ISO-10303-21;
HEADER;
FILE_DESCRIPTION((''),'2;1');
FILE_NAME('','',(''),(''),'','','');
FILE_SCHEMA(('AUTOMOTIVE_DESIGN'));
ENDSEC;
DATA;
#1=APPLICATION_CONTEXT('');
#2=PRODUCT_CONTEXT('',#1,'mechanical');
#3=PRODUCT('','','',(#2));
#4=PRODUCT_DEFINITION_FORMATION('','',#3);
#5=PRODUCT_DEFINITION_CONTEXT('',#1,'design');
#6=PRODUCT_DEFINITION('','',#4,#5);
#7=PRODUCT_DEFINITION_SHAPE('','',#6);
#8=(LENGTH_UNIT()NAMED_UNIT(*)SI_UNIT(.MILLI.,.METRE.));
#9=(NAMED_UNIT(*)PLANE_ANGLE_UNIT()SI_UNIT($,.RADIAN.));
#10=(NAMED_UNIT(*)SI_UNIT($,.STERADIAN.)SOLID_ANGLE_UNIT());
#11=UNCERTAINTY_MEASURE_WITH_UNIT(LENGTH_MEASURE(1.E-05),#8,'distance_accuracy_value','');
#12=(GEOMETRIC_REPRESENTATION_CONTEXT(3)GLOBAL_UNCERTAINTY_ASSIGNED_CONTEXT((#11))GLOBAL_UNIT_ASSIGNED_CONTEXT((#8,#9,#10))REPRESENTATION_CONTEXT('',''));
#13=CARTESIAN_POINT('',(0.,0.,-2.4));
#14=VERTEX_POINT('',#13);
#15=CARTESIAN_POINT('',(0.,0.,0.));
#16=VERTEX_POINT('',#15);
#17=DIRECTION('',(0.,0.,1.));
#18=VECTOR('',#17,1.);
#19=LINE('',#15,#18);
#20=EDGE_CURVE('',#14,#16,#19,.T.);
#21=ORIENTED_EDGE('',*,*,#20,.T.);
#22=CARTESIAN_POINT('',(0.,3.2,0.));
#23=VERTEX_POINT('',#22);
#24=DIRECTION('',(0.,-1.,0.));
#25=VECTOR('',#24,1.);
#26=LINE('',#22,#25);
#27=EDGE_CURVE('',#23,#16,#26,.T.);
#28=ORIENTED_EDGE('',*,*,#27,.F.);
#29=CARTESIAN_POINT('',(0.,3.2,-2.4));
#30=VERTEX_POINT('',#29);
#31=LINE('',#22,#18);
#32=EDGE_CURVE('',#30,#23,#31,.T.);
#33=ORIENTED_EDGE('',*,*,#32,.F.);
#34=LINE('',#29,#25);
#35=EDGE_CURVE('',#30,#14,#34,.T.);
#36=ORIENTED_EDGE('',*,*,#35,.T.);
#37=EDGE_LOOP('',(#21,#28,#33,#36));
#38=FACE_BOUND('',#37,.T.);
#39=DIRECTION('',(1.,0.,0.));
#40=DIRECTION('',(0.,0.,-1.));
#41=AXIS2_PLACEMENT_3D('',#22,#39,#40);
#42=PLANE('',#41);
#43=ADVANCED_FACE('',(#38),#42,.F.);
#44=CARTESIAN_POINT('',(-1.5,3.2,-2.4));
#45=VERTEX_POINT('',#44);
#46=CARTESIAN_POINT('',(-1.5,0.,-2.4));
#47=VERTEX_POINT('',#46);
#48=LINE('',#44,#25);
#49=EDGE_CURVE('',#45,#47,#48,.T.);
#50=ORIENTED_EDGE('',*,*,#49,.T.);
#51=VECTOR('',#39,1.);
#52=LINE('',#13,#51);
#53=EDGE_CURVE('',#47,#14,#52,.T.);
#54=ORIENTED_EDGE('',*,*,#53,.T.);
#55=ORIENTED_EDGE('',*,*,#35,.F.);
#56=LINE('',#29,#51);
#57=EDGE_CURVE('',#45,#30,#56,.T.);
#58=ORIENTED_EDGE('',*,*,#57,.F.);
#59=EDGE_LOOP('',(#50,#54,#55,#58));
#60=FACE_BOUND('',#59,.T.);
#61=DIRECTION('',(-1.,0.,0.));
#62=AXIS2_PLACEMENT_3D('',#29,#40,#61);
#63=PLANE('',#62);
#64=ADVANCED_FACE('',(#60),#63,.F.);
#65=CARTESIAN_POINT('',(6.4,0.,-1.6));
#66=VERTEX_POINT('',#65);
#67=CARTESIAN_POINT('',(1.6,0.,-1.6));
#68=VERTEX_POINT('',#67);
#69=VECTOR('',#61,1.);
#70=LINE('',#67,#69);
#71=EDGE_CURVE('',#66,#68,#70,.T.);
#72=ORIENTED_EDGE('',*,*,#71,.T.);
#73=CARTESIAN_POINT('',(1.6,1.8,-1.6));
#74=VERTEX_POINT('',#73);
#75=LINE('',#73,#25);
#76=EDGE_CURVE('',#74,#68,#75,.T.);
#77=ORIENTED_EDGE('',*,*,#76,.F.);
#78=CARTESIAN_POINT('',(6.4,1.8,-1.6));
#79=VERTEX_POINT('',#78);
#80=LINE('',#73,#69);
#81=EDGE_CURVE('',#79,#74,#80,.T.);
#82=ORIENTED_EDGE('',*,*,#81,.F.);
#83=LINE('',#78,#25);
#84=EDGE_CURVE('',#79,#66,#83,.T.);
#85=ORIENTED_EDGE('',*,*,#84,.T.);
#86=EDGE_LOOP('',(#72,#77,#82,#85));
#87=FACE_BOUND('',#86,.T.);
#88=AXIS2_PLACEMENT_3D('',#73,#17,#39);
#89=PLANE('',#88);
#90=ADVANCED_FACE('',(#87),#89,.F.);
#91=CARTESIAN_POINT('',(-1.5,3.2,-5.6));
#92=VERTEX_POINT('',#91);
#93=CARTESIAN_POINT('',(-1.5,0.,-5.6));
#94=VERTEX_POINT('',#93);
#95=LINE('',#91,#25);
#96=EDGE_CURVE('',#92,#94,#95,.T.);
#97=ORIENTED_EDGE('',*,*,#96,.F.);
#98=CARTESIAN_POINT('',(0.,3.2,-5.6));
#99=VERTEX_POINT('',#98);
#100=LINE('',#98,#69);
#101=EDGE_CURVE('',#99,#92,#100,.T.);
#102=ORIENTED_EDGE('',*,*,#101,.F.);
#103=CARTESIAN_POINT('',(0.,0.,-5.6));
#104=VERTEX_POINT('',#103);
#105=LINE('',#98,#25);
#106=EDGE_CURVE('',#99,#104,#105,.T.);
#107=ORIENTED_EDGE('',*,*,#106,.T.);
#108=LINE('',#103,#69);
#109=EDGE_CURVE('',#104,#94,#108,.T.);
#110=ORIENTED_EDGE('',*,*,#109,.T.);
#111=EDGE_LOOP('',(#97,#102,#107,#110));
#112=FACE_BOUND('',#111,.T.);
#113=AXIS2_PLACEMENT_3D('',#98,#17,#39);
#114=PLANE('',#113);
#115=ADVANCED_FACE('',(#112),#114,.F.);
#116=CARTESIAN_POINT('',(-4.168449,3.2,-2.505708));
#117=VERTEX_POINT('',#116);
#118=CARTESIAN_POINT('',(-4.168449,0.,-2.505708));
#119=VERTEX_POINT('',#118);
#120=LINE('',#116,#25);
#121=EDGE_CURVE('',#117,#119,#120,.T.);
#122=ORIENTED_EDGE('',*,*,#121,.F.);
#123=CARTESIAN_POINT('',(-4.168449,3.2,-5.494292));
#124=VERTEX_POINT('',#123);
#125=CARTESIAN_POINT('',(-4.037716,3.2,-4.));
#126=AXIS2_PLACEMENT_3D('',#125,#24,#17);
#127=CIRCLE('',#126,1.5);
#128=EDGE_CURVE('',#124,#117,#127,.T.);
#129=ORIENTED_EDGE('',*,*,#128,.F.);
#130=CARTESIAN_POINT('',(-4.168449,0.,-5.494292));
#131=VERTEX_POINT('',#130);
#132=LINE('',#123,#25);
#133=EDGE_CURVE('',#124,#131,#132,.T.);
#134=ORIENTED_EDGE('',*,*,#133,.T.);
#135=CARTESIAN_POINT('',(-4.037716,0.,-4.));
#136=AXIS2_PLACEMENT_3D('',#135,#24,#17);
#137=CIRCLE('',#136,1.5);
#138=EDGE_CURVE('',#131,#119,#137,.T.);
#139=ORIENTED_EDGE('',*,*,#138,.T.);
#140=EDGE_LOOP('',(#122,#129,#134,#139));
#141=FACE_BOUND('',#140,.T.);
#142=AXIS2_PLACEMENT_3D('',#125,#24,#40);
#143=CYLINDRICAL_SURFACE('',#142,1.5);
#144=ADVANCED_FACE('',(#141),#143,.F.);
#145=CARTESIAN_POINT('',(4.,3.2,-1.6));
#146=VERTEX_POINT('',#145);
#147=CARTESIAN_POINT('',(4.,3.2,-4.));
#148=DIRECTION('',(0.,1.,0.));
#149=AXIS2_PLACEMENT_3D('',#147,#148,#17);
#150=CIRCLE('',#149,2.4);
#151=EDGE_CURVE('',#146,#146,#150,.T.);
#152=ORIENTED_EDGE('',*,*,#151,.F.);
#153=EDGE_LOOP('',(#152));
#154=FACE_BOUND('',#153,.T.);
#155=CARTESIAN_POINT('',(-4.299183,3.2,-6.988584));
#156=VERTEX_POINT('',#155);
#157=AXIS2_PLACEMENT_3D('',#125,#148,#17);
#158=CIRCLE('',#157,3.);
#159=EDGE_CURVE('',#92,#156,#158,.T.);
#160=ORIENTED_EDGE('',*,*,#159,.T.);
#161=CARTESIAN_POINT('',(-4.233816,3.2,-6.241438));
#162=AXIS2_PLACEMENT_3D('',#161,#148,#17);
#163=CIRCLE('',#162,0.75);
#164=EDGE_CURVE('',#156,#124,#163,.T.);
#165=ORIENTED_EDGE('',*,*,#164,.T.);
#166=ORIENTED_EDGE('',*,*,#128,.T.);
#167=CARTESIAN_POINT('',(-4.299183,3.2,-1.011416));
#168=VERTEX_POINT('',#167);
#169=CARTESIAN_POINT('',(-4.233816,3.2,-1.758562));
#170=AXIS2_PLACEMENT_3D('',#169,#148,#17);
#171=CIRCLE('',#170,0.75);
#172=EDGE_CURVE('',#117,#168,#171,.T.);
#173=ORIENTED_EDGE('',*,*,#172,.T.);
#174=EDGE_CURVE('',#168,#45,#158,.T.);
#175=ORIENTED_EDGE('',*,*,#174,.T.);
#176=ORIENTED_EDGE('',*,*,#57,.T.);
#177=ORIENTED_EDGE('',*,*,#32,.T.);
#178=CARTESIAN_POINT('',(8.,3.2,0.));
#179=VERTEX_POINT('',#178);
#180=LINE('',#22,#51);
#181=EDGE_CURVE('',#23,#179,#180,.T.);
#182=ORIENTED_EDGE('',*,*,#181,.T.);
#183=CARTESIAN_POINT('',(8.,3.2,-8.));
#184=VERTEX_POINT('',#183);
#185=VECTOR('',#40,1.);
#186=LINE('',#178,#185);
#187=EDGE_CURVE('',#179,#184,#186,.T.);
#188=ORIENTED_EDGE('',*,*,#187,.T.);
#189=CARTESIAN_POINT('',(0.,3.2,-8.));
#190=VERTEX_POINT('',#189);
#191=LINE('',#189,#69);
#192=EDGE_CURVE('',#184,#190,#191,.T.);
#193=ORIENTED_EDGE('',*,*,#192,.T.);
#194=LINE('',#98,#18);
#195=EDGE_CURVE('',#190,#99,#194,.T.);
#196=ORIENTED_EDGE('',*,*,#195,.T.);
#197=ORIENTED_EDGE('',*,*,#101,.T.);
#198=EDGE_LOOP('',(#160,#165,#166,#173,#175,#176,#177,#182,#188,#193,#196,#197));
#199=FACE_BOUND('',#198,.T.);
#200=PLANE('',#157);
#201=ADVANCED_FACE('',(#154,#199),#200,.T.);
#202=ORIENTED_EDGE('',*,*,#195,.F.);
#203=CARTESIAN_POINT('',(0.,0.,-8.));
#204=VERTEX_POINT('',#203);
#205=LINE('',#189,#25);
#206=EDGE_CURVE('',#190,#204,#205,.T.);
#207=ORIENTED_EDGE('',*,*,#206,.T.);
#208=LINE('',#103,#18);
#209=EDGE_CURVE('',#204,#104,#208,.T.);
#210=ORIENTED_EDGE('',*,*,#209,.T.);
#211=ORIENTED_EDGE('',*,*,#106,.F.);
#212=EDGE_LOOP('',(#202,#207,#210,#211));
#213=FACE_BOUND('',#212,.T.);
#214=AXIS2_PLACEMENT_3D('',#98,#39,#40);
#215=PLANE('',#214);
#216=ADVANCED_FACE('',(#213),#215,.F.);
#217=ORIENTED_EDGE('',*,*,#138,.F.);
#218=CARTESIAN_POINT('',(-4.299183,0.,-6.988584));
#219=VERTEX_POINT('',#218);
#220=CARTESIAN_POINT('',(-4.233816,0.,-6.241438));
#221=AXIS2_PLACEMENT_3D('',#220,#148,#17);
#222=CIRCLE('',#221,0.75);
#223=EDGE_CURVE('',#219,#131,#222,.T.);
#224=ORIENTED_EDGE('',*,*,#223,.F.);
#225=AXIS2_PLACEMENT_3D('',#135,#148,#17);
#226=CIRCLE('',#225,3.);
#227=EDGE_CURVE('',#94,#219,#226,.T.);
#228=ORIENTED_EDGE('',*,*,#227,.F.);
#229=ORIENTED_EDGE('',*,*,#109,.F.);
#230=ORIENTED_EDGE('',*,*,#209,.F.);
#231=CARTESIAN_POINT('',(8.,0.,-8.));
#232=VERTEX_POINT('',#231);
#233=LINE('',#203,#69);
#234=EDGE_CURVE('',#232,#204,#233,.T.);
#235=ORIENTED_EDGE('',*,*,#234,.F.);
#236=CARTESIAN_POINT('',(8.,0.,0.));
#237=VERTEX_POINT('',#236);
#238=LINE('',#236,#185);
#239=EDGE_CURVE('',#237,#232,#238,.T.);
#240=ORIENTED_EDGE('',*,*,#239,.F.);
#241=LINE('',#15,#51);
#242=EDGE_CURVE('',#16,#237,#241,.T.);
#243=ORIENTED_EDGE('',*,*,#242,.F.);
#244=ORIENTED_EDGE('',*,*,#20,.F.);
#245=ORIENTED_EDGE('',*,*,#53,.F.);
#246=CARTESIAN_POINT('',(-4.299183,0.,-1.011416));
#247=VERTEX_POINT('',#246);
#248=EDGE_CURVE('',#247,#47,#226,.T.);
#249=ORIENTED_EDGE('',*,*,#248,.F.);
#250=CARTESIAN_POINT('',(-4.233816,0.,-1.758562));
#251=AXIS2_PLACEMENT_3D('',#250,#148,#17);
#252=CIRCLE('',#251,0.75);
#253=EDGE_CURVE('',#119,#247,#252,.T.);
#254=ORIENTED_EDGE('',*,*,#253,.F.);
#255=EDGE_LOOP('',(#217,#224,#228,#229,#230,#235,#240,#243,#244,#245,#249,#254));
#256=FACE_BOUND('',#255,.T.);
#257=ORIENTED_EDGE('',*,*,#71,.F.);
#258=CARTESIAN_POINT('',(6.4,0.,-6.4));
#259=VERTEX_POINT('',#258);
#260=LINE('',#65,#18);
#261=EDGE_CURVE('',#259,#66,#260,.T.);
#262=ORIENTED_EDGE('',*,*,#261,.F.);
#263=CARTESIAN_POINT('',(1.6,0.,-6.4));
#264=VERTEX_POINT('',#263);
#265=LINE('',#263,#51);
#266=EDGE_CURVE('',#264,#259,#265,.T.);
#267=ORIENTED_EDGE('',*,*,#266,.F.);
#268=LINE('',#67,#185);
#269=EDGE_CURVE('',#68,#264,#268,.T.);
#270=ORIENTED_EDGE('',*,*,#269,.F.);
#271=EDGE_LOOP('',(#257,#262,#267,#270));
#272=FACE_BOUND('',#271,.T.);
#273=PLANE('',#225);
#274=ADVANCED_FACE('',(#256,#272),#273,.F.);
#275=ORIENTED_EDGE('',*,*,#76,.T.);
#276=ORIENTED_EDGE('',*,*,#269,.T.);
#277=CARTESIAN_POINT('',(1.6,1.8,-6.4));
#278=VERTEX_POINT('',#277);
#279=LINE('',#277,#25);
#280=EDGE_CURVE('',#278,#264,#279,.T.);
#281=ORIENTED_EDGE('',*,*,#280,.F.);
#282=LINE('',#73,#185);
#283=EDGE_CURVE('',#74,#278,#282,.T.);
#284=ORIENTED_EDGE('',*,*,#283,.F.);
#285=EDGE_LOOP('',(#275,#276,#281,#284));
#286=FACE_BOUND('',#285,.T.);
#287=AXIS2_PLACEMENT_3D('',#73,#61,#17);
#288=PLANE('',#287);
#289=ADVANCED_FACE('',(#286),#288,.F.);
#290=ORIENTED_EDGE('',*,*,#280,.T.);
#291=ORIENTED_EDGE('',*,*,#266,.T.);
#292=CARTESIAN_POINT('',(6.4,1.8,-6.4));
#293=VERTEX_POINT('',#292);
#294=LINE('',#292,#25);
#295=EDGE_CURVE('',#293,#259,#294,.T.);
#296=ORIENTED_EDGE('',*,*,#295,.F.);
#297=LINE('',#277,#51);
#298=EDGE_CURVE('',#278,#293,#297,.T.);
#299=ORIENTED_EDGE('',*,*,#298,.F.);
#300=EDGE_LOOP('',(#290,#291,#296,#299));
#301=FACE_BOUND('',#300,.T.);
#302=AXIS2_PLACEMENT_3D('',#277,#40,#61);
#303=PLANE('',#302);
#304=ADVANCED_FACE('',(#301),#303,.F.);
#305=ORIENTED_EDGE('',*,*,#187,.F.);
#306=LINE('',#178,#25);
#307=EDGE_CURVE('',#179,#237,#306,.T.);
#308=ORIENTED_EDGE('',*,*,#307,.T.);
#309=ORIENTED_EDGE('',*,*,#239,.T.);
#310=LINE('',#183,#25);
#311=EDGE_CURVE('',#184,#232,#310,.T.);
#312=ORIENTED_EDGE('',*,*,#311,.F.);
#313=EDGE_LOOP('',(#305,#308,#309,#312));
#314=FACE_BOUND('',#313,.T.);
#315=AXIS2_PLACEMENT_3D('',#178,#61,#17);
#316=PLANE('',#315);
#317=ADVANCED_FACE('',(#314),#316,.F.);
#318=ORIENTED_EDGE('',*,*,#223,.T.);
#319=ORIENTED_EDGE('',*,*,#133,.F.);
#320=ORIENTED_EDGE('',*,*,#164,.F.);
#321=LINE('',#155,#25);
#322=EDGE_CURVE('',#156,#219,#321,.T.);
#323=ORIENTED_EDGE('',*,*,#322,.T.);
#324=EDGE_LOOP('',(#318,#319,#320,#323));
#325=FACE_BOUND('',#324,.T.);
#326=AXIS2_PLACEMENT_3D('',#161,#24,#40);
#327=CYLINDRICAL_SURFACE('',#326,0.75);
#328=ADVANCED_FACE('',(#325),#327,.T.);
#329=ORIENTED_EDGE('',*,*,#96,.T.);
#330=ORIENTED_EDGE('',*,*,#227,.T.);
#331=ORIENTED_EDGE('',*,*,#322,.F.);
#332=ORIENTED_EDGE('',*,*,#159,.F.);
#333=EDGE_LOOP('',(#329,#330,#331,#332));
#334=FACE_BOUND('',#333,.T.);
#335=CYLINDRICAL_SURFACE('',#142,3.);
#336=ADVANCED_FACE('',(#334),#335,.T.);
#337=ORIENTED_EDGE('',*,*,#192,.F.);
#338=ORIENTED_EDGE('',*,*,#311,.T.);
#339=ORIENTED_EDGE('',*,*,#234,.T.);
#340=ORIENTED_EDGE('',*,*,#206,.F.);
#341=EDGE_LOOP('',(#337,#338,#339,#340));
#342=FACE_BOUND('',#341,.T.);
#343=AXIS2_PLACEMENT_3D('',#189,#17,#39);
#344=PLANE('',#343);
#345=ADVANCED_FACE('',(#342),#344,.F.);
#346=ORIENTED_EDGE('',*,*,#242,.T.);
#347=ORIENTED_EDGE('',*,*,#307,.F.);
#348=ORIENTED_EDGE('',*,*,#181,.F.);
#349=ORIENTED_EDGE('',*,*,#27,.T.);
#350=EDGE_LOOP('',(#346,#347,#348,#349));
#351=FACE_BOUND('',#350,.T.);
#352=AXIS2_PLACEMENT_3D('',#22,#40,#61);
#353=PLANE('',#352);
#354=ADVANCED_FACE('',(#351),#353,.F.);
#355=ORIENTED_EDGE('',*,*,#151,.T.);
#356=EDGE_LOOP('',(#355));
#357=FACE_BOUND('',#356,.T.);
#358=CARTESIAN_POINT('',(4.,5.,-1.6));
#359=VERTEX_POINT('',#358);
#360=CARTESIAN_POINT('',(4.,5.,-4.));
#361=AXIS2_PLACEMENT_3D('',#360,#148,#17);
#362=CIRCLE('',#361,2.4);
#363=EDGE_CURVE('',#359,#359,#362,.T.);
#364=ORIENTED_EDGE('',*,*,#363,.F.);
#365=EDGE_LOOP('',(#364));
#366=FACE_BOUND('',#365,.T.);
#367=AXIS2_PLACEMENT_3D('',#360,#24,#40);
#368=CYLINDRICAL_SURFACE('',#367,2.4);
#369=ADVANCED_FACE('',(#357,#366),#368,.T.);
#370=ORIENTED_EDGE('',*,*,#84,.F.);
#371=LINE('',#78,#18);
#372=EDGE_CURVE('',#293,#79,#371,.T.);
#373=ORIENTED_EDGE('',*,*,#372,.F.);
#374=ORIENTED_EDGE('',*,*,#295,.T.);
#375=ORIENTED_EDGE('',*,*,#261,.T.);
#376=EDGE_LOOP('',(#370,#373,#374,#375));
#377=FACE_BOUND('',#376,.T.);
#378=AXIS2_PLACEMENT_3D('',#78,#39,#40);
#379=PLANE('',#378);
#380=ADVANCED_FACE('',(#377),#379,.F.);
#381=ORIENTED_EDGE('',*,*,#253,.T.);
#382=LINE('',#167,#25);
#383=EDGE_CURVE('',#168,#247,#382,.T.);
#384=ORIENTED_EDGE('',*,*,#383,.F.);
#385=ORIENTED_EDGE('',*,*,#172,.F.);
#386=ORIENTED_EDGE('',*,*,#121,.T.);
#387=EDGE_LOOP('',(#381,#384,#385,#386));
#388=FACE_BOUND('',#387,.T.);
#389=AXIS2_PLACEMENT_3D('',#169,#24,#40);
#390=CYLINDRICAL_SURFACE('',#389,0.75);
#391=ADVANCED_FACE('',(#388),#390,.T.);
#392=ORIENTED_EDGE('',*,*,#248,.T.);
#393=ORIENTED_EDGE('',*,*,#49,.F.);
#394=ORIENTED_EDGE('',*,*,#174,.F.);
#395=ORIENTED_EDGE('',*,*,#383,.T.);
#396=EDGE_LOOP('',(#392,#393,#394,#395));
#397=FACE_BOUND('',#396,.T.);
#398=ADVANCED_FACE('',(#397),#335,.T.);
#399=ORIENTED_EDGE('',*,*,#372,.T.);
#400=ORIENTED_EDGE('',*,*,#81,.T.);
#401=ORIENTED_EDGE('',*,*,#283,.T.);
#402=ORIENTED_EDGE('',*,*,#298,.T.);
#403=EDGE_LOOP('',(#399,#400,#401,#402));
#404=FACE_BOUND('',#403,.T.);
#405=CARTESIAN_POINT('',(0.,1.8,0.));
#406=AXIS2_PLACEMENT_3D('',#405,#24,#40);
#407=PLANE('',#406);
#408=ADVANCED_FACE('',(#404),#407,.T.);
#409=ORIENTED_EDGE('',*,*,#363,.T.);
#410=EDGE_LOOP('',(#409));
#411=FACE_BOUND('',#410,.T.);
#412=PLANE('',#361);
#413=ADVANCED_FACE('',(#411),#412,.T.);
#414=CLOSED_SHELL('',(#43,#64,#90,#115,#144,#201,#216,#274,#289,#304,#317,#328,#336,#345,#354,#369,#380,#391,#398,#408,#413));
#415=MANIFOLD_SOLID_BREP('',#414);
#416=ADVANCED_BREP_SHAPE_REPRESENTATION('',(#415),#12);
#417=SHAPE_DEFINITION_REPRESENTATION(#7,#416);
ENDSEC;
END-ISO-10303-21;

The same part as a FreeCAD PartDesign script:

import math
import FreeCAD as App
import Part
import Sketcher
from FreeCAD import Vector

doc = App.newDocument("Part")
params = doc.addObject("Spreadsheet::Sheet", "Params")
for row, (alias, value) in enumerate([
    ("sketch1_radius", "3 mm"),
    ("sketch1_radius2", "1.5 mm"),
    ("sketch1_width", "8 mm"),
    ("sketch1_width2", "1.5 mm"),
    ("sketch1_height", "2.4 mm"),
    ("pad1_length", "3.2 mm"),
    ("sketch2_diameter", "4.8 mm"),
    ("pad2_length", "1.8 mm"),
    ("sketch3_width", "4.8 mm"),
    ("pocket1_length", "1.8 mm"),
], start=1):
    params.set(f"A{row}", alias)
    params.set(f"B{row}", "=" + value)
    params.setAlias(f"B{row}", alias)

body = doc.addObject("PartDesign::Body", "Body")

# Sketch on XZ plane
sketch1 = body.newObject("Sketcher::SketchObject", "Sketch")
sketch1.AttachmentSupport = (doc.getObject("XZ_Plane"), [""])
sketch1.MapMode = "FlatFace"
sketch1.addGeometry(Part.LineSegment(Vector(-1.5, -2.4, 0), Vector(0, -2.4, 0)), False)
sketch1.addGeometry(Part.LineSegment(Vector(0, -2.4, 0), Vector(0, 0, 0)), False)
sketch1.addGeometry(Part.LineSegment(Vector(0, 0, 0), Vector(8, 0, 0)), False)
sketch1.addGeometry(Part.LineSegment(Vector(8, 0, 0), Vector(8, -8, 0)), False)
sketch1.addGeometry(Part.LineSegment(Vector(8, -8, 0), Vector(0, -8, 0)), False)
sketch1.addGeometry(Part.LineSegment(Vector(0, -8, 0), Vector(0, -5.6, 0)), False)
sketch1.addGeometry(Part.LineSegment(Vector(0, -5.6, 0), Vector(-1.5, -5.6, 0)), False)
sketch1.addGeometry(Part.ArcOfCircle(Part.Circle(Vector(-4.037716, -4, 0), Vector(0, 0, 1), 3), math.radians(-95), math.radians(-32.230953)), False)
sketch1.addGeometry(Part.ArcOfCircle(Part.Circle(Vector(-4.233816, -6.241438, 0), Vector(0, 0, 1), 0.75), math.radians(85), math.radians(265)), False)
sketch1.addGeometry(Part.ArcOfCircle(Part.Circle(Vector(-4.037716, -4, 0), Vector(0, 0, 1), 1.5), math.radians(-95), math.radians(95)), False)
sketch1.addGeometry(Part.ArcOfCircle(Part.Circle(Vector(-4.233816, -1.758562, 0), Vector(0, 0, 1), 0.75), math.radians(95), math.radians(275)), False)
sketch1.addGeometry(Part.ArcOfCircle(Part.Circle(Vector(-4.037716, -4, 0), Vector(0, 0, 1), 3), math.radians(32.230953), math.radians(95)), False)
sketch1.addConstraint(Sketcher.Constraint("Coincident", 0, 2, 1, 1))
sketch1.addConstraint(Sketcher.Constraint("Coincident", 1, 2, 2, 1))
sketch1.addConstraint(Sketcher.Constraint("Coincident", 2, 2, 3, 1))
sketch1.addConstraint(Sketcher.Constraint("Coincident", 3, 2, 4, 1))
sketch1.addConstraint(Sketcher.Constraint("Coincident", 4, 2, 5, 1))
sketch1.addConstraint(Sketcher.Constraint("Coincident", 5, 2, 6, 1))
sketch1.addConstraint(Sketcher.Constraint("Coincident", 6, 2, 7, 2))
sketch1.addConstraint(Sketcher.Constraint("Tangent", 7, 1, 8, 2))
sketch1.addConstraint(Sketcher.Constraint("Tangent", 8, 1, 9, 1))
sketch1.addConstraint(Sketcher.Constraint("Tangent", 9, 2, 10, 2))
sketch1.addConstraint(Sketcher.Constraint("Tangent", 10, 1, 11, 2))
sketch1.addConstraint(Sketcher.Constraint("Coincident", 11, 1, 0, 1))
sketch1.addConstraint(Sketcher.Constraint("Horizontal", 0))
sketch1.addConstraint(Sketcher.Constraint("Vertical", 1))
sketch1.addConstraint(Sketcher.Constraint("Horizontal", 2))
sketch1.addConstraint(Sketcher.Constraint("Vertical", 3))
sketch1.addConstraint(Sketcher.Constraint("Horizontal", 4))
sketch1.addConstraint(Sketcher.Constraint("Vertical", 5))
sketch1.addConstraint(Sketcher.Constraint("Horizontal", 6))
sketch1.addConstraint(Sketcher.Constraint("Coincident", 1, 2, -1, 1))
sketch1.addConstraint(Sketcher.Constraint("Coincident", 9, 3, 7, 3))
sketch1.addConstraint(Sketcher.Constraint("Coincident", 11, 3, 7, 3))
sketch1.addConstraint(Sketcher.Constraint("Equal", 8, 10))
sketch1.addConstraint(Sketcher.Constraint("PointOnObject", 4, 2, -2))
sketch1.addConstraint(Sketcher.Constraint("Vertical", 8, 3, 10, 3))
sketch1.addConstraint(Sketcher.Constraint("Vertical", 6, 2, 11, 1))
sketch1.addConstraint(Sketcher.Constraint("Equal", 4, 3))
sketch1.addConstraint(Sketcher.Constraint("Equal", 1, 5))
sketch1.addConstraint(Sketcher.Constraint("Radius", 7, 3.0))
sketch1.addConstraint(Sketcher.Constraint("Radius", 9, 1.5))
sketch1.addConstraint(Sketcher.Constraint("DistanceX", 2, 1, 2, 2, 8.0))
sketch1.addConstraint(Sketcher.Constraint("DistanceX", 0, 1, 0, 2, 1.5))
sketch1.addConstraint(Sketcher.Constraint("DistanceY", 1, 1, 1, 2, 2.4))
sketch1.addConstraint(Sketcher.Constraint("DistanceX", 8, 3, 7, 3, 0.1961))
sketch1.setExpression("Constraints[28]", "Params.sketch1_radius")
sketch1.setExpression("Constraints[29]", "Params.sketch1_radius2")
sketch1.setExpression("Constraints[30]", "Params.sketch1_width")
sketch1.setExpression("Constraints[31]", "Params.sketch1_width2")
sketch1.setExpression("Constraints[32]", "Params.sketch1_height")
pad1 = body.newObject("PartDesign::Pad", "Pad")
pad1.Profile = sketch1
pad1.setExpression("Length", "Params.pad1_length")
pad1.Reversed = True

# Sketch on XZ plane
sketch2 = body.newObject("Sketcher::SketchObject", "Sketch001")
sketch2.AttachmentSupport = (doc.getObject("XZ_Plane"), [""])
sketch2.MapMode = "FlatFace"
sketch2.AttachmentOffset = App.Placement(Vector(0, 0, -3.2), App.Rotation())
sketch2.addGeometry(Part.Circle(Vector(4, -4, 0), Vector(0, 0, 1), 2.4), False)
sketch2.addConstraint(Sketcher.Constraint("Diameter", 0, 4.8))
sketch2.addConstraint(Sketcher.Constraint("DistanceX", -1, 1, 0, 3, 4.0))
sketch2.addConstraint(Sketcher.Constraint("DistanceY", 0, 3, -1, 1, 4.0))
sketch2.setExpression("Constraints[0]", "Params.sketch2_diameter")
pad2 = body.newObject("PartDesign::Pad", "Pad001")
pad2.Profile = sketch2
pad2.setExpression("Length", "Params.pad2_length")
pad2.Reversed = True

# Sketch on XZ plane
sketch3 = body.newObject("Sketcher::SketchObject", "Sketch002")
sketch3.AttachmentSupport = (doc.getObject("XZ_Plane"), [""])
sketch3.MapMode = "FlatFace"
sketch3.addGeometry(Part.LineSegment(Vector(1.6, -1.6, 0), Vector(1.6, -6.4, 0)), False)
sketch3.addGeometry(Part.LineSegment(Vector(1.6, -6.4, 0), Vector(6.4, -6.4, 0)), False)
sketch3.addGeometry(Part.LineSegment(Vector(6.4, -6.4, 0), Vector(6.4, -1.6, 0)), False)
sketch3.addGeometry(Part.LineSegment(Vector(6.4, -1.6, 0), Vector(1.6, -1.6, 0)), False)
sketch3.addConstraint(Sketcher.Constraint("Coincident", 0, 2, 1, 1))
sketch3.addConstraint(Sketcher.Constraint("Coincident", 1, 2, 2, 1))
sketch3.addConstraint(Sketcher.Constraint("Coincident", 2, 2, 3, 1))
sketch3.addConstraint(Sketcher.Constraint("Coincident", 3, 2, 0, 1))
sketch3.addConstraint(Sketcher.Constraint("Vertical", 0))
sketch3.addConstraint(Sketcher.Constraint("Horizontal", 1))
sketch3.addConstraint(Sketcher.Constraint("Vertical", 2))
sketch3.addConstraint(Sketcher.Constraint("Horizontal", 3))
sketch3.addConstraint(Sketcher.Constraint("Equal", 3, 0))
sketch3.addConstraint(Sketcher.Constraint("DistanceX", 1, 1, 1, 2, 4.8))
sketch3.addConstraint(Sketcher.Constraint("DistanceX", -1, 1, 0, 2, 1.6))
sketch3.addConstraint(Sketcher.Constraint("DistanceY", 0, 2, -1, 1, 6.4))
sketch3.setExpression("Constraints[9]", "Params.sketch3_width")
pocket1 = body.newObject("PartDesign::Pocket", "Pocket")
pocket1.Profile = sketch3
pocket1.setExpression("Length", "Params.pocket1_length")

doc.recompute()
